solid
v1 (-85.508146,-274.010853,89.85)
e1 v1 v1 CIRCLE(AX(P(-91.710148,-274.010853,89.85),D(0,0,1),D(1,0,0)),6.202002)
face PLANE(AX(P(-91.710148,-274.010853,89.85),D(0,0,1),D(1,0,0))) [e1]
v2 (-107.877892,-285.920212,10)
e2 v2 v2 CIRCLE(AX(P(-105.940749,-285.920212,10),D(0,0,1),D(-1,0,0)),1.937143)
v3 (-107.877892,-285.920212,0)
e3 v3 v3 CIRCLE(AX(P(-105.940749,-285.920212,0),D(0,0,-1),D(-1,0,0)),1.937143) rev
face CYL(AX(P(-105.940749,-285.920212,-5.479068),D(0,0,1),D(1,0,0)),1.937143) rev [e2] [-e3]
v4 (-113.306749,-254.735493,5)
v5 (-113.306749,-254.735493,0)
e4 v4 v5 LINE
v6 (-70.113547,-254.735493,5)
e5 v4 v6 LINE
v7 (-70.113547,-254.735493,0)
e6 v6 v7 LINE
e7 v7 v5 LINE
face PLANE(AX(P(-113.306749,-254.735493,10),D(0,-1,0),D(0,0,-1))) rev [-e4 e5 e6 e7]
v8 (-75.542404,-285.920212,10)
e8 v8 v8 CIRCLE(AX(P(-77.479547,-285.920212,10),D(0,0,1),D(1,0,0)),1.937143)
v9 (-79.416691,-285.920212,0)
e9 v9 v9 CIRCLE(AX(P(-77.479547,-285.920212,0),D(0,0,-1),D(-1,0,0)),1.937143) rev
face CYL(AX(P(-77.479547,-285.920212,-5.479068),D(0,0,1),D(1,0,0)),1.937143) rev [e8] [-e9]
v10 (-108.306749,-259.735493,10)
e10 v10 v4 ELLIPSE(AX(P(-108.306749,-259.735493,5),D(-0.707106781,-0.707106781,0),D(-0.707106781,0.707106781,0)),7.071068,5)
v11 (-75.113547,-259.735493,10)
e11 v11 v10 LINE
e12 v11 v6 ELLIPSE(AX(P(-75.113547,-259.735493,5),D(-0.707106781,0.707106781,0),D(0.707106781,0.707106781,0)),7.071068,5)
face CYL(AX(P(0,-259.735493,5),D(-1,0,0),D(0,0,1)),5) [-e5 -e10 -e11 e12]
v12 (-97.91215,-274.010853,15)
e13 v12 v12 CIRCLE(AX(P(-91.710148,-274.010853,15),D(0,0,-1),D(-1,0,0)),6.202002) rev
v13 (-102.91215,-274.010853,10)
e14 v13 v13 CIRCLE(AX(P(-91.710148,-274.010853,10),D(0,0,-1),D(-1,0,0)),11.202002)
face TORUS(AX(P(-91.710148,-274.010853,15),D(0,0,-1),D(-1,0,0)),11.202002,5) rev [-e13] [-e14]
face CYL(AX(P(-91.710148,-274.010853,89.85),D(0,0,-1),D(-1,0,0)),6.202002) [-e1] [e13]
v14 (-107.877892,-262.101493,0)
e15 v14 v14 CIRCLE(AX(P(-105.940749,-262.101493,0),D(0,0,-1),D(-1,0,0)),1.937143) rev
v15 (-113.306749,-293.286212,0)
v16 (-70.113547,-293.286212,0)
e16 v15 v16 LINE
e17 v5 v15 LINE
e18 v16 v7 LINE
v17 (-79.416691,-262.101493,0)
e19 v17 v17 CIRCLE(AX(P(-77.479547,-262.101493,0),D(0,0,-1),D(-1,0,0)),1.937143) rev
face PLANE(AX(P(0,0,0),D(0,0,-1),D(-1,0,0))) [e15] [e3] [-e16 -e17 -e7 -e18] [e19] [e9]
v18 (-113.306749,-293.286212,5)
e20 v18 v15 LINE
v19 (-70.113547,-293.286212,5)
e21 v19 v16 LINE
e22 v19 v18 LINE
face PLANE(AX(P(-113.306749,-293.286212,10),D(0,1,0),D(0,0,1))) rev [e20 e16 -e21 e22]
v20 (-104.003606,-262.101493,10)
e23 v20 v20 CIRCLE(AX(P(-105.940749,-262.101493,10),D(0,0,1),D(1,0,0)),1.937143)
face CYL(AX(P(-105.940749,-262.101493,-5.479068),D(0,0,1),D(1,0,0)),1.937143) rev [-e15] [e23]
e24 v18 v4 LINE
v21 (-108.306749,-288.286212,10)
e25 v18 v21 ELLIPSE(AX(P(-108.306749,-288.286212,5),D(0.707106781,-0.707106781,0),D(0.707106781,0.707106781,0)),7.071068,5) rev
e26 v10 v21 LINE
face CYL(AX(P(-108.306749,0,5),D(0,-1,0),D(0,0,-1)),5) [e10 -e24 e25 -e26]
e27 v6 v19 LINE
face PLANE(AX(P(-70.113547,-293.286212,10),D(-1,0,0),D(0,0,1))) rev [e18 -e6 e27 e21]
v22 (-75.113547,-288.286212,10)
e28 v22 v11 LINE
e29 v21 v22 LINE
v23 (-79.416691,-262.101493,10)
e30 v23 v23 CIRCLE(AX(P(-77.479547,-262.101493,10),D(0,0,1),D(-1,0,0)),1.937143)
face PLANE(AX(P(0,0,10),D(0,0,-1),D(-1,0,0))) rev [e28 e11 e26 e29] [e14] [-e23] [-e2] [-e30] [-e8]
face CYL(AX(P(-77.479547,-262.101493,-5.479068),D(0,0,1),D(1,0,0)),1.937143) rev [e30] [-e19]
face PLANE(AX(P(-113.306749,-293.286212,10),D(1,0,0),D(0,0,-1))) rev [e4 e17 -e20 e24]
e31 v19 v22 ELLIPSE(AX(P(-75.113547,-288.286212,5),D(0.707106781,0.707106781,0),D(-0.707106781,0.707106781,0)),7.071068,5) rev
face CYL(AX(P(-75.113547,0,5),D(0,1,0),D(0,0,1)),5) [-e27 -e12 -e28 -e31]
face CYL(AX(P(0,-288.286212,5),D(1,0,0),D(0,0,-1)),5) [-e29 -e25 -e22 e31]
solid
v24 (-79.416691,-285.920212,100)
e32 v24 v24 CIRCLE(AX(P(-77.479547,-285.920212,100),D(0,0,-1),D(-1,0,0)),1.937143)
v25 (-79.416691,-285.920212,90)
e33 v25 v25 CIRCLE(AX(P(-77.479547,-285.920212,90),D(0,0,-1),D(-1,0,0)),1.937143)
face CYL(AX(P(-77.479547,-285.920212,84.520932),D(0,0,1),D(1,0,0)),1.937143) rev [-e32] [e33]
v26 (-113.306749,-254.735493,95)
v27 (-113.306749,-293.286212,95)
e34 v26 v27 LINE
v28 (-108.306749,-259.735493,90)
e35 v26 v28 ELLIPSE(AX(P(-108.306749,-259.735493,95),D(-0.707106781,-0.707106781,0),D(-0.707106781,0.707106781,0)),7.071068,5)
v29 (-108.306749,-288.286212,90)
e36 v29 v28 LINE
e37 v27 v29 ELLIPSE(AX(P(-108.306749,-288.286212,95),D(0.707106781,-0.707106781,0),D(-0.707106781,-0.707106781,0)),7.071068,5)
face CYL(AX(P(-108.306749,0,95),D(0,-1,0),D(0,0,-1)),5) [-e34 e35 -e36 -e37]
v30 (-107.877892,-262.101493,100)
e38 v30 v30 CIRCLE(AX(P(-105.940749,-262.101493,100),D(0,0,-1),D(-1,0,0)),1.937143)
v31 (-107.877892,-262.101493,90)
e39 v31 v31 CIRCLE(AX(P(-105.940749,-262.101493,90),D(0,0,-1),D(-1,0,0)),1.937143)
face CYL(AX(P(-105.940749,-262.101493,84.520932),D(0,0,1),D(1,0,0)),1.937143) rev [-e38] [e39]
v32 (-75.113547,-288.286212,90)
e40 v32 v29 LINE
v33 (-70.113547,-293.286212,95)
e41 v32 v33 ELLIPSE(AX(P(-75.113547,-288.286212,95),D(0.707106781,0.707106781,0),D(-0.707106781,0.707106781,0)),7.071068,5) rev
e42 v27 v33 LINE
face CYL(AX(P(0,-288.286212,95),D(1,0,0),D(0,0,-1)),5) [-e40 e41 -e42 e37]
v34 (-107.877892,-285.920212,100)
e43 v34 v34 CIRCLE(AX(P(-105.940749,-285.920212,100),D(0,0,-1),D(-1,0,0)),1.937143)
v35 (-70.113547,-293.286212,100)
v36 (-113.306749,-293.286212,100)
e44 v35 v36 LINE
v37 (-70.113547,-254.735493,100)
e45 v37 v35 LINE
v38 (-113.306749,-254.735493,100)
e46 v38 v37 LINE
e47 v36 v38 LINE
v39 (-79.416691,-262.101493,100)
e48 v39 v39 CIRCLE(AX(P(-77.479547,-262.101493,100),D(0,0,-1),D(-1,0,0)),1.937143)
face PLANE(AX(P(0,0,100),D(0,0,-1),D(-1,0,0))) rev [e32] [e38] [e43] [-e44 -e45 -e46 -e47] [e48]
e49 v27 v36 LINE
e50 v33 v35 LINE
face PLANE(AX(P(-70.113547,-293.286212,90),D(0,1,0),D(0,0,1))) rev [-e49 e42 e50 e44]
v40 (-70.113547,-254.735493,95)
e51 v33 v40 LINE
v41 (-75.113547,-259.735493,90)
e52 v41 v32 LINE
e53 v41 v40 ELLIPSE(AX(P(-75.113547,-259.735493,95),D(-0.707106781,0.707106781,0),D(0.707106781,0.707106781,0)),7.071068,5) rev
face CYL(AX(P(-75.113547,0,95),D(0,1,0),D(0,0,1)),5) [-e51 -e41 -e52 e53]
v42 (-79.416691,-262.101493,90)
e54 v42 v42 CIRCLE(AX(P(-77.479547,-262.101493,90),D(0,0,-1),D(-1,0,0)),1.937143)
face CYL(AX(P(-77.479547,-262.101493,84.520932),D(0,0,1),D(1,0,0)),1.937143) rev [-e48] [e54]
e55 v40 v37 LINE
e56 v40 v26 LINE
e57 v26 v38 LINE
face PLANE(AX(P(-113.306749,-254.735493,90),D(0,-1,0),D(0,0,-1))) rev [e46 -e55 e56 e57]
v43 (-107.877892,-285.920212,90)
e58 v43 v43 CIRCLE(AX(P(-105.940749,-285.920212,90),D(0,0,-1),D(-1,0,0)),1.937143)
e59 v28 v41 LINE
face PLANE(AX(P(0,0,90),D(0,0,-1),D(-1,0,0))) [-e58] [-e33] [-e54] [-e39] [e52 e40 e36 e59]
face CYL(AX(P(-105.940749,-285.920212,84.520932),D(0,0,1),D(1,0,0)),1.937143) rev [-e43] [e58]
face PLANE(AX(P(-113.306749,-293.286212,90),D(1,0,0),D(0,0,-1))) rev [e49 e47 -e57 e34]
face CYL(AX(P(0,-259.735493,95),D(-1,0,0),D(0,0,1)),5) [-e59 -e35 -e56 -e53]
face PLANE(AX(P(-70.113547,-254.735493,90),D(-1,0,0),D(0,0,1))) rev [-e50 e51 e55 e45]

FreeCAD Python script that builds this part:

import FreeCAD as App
import Part
import Sketcher
Q = App.Units.Quantity


def edges_at(feature, points):
    """Names of the edges that pass closest to the given points."""
    edges = feature.Shape.Edges
    near = lambda p: min(range(len(edges)), key=lambda i: edges[i].distToShape(Part.Vertex(*p))[0])
    return sorted({f"Edge{near(p) + 1}" for p in points})


def add_polygon(sketch, points):
    """Adds a closed chain of lines whose ends are joined by coincident constraints."""
    first, n = sketch.GeometryCount, len(points)
    for a, b in zip(points, points[1:] + points[:1]):
        sketch.addGeometry(Part.LineSegment(App.Vector(*a, 0), App.Vector(*b, 0)), False)
    for i in range(n):
        sketch.addConstraint(Sketcher.Constraint("Coincident", first + i, 2, first + (i + 1) % n, 1))

doc = App.newDocument("Part")
body = doc.addObject("PartDesign::Body", "Body")

# Sketch on XY plane
sketch1 = doc.addObject("Sketcher::SketchObject", "Sketch")
body.addObject(sketch1)
sketch1.AttachmentSupport = (doc.XY_Plane, [""])
sketch1.MapMode = "FlatFace"
add_polygon(sketch1, [(-113, -255), (-113, -293), (-70, -293), (-70, -255)])  # lines 0-3
sketch1.addConstraint([
    Sketcher.Constraint("Vertical", 0),
    Sketcher.Constraint("Horizontal", 1),
    Sketcher.Constraint("Vertical", 2),
    Sketcher.Constraint("Horizontal", 3),
    Sketcher.Constraint("DistanceX", 1, 1, 1, 2, Q("43.193201 mm")),
    Sketcher.Constraint("DistanceY", 0, 2, 0, 1, Q("38.550719 mm")),
    Sketcher.Constraint("DistanceX", 0, 2, -1, 1, Q("113.306749 mm")),
    Sketcher.Constraint("DistanceY", 0, 2, -1, 1, Q("293.286212 mm")),
])
pad1 = doc.addObject("PartDesign::Pad", "Pad")
body.addObject(pad1)
pad1.Profile = sketch1
pad1.Length = 10

# Sketch on XY plane
sketch2 = doc.addObject("Sketcher::SketchObject", "Sketch001")
body.addObject(sketch2)
sketch2.AttachmentSupport = (doc.XY_Plane, [""])
sketch2.MapMode = "FlatFace"
sketch2.AttachmentOffset = App.Placement(App.Vector(0, 0, 10), App.Rotation())
sketch2.addGeometry(Part.Circle(App.Vector(-92, -274, 0), App.Vector(0, 0, 1), 6), False)
sketch2.addConstraint([
    Sketcher.Constraint("Diameter", 0, Q("12.404005 mm")),
    Sketcher.Constraint("DistanceX", 0, 3, -1, 1, Q("91.710148 mm")),
    Sketcher.Constraint("DistanceY", 0, 3, -1, 1, Q("274.010853 mm")),
])
pad2 = doc.addObject("PartDesign::Pad", "Pad001")
body.addObject(pad2)
pad2.Profile = sketch2
pad2.Length = 79.85
doc.recompute()

fillet = doc.addObject("PartDesign::Fillet", "Fillet")
body.addObject(fillet)
fillet.Base = (pad2, edges_at(pad2, [(-97.912, -274.011, 10)]))
fillet.Radius = 5
doc.recompute()

fillet2 = doc.addObject("PartDesign::Fillet", "Fillet001")
body.addObject(fillet2)
fillet2.Base = (fillet, edges_at(fillet, [
    (-70.114, -274.011, 10),
    (-91.71, -254.735, 10),
    (-113.307, -274.011, 10),
    (-91.71, -293.286, 10),
]))
fillet2.Radius = 5

# Sketch on XY plane
sketch3 = doc.addObject("Sketcher::SketchObject", "Sketch002")
body.addObject(sketch3)
sketch3.AttachmentSupport = (doc.XY_Plane, [""])
sketch3.MapMode = "FlatFace"
sketch3.AttachmentOffset = App.Placement(App.Vector(0, 0, 10), App.Rotation())
sketch3.addGeometry([
    Part.Circle(App.Vector(-77.5, -285.9, 0), App.Vector(0, 0, 1), 1.9),
    Part.Circle(App.Vector(-105.9, -285.9, 0), App.Vector(0, 0, 1), 1.9),
    Part.Circle(App.Vector(-77.5, -262.1, 0), App.Vector(0, 0, 1), 1.9),
    Part.Circle(App.Vector(-105.9, -262.1, 0), App.Vector(0, 0, 1), 1.9),
], False)
sketch3.addConstraint([
    Sketcher.Constraint("Equal", 0, 1),
    Sketcher.Constraint("Equal", 1, 2),
    Sketcher.Constraint("Equal", 2, 3),
    Sketcher.Constraint("Horizontal", 0, 3, 1, 3),
    Sketcher.Constraint("Horizontal", 2, 3, 3, 3),
    Sketcher.Constraint("Vertical", 0, 3, 2, 3),
    Sketcher.Constraint("Vertical", 1, 3, 3, 3),
    Sketcher.Constraint("Diameter", 0, Q("3.874286 mm")),
    Sketcher.Constraint("DistanceX", 1, 3, 0, 3, Q("28.461201 mm")),
    Sketcher.Constraint("DistanceX", 1, 3, -1, 1, Q("105.940749 mm")),
    Sketcher.Constraint("DistanceY", 0, 3, 2, 3, Q("23.818719 mm")),
    Sketcher.Constraint("DistanceY", 0, 3, -1, 1, Q("285.920212 mm")),
])
pocket1 = doc.addObject("PartDesign::Pocket", "Pocket")
body.addObject(pocket1)
pocket1.Profile = sketch3
pocket1.Length = 10
body2 = doc.addObject("PartDesign::Body", "Body001")

# Sketch on XY plane
sketch4 = doc.addObject("Sketcher::SketchObject", "Sketch003")
body2.addObject(sketch4)
sketch4.AttachmentSupport = (doc.getObject("XY_Plane001"), [""])
sketch4.MapMode = "FlatFace"
sketch4.AttachmentOffset = App.Placement(App.Vector(0, 0, 100), App.Rotation())
add_polygon(sketch4, [(-70, -255), (-70, -293), (-113, -293), (-113, -255)])  # lines 0-3
sketch4.addConstraint([
    Sketcher.Constraint("Vertical", 0),
    Sketcher.Constraint("Horizontal", 1),
    Sketcher.Constraint("Vertical", 2),
    Sketcher.Constraint("Horizontal", 3),
    Sketcher.Constraint("DistanceX", 1, 2, 1, 1, Q("43.193201 mm")),
    Sketcher.Constraint("DistanceY", 0, 2, 0, 1, Q("38.550719 mm")),
    Sketcher.Constraint("DistanceX", 1, 2, -1, 1, Q("113.306749 mm")),
    Sketcher.Constraint("DistanceY", 0, 2, -1, 1, Q("293.286212 mm")),
])
pad3 = doc.addObject("PartDesign::Pad", "Pad002")
body2.addObject(pad3)
pad3.Profile = sketch4
pad3.Length = 10
pad3.Reversed = True
doc.recompute()

fillet3 = doc.addObject("PartDesign::Fillet", "Fillet002")
body2.addObject(fillet3)
fillet3.Base = (pad3, edges_at(pad3, [
    (-91.71, -254.735, 90),
    (-70.114, -274.011, 90),
    (-91.71, -293.286, 90),
    (-113.307, -274.011, 90),
]))
fillet3.Radius = 5

# Sketch on XY plane
sketch5 = doc.addObject("Sketcher::SketchObject", "Sketch004")
body2.addObject(sketch5)
sketch5.AttachmentSupport = (doc.getObject("XY_Plane001"), [""])
sketch5.MapMode = "FlatFace"
sketch5.AttachmentOffset = App.Placement(App.Vector(0, 0, 100), App.Rotation())
sketch5.addGeometry([
    Part.Circle(App.Vector(-105.9, -285.9, 0), App.Vector(0, 0, 1), 1.9),
    Part.Circle(App.Vector(-105.9, -262.1, 0), App.Vector(0, 0, 1), 1.9),
    Part.Circle(App.Vector(-77.5, -262.1, 0), App.Vector(0, 0, 1), 1.9),
    Part.Circle(App.Vector(-77.5, -285.9, 0), App.Vector(0, 0, 1), 1.9),
], False)
sketch5.addConstraint([
    Sketcher.Constraint("Equal", 0, 1),
    Sketcher.Constraint("Equal", 1, 2),
    Sketcher.Constraint("Equal", 2, 3),
    Sketcher.Constraint("Horizontal", 1, 3, 2, 3),
    Sketcher.Constraint("Horizontal", 0, 3, 3, 3),
    Sketcher.Constraint("Vertical", 0, 3, 1, 3),
    Sketcher.Constraint("Vertical", 2, 3, 3, 3),
    Sketcher.Constraint("Diameter", 0, Q("3.874286 mm")),
    Sketcher.Constraint("DistanceX", 1, 3, 2, 3, Q("28.461201 mm")),
    Sketcher.Constraint("DistanceX", 0, 3, -1, 1, Q("105.940749 mm")),
    Sketcher.Constraint("DistanceY", 0, 3, 1, 3, Q("23.818719 mm")),
    Sketcher.Constraint("DistanceY", 0, 3, -1, 1, Q("285.920212 mm")),
])
pocket2 = doc.addObject("PartDesign::Pocket", "Pocket001")
body2.addObject(pocket2)
pocket2.Profile = sketch5
pocket2.Length = 10

doc.recompute()
